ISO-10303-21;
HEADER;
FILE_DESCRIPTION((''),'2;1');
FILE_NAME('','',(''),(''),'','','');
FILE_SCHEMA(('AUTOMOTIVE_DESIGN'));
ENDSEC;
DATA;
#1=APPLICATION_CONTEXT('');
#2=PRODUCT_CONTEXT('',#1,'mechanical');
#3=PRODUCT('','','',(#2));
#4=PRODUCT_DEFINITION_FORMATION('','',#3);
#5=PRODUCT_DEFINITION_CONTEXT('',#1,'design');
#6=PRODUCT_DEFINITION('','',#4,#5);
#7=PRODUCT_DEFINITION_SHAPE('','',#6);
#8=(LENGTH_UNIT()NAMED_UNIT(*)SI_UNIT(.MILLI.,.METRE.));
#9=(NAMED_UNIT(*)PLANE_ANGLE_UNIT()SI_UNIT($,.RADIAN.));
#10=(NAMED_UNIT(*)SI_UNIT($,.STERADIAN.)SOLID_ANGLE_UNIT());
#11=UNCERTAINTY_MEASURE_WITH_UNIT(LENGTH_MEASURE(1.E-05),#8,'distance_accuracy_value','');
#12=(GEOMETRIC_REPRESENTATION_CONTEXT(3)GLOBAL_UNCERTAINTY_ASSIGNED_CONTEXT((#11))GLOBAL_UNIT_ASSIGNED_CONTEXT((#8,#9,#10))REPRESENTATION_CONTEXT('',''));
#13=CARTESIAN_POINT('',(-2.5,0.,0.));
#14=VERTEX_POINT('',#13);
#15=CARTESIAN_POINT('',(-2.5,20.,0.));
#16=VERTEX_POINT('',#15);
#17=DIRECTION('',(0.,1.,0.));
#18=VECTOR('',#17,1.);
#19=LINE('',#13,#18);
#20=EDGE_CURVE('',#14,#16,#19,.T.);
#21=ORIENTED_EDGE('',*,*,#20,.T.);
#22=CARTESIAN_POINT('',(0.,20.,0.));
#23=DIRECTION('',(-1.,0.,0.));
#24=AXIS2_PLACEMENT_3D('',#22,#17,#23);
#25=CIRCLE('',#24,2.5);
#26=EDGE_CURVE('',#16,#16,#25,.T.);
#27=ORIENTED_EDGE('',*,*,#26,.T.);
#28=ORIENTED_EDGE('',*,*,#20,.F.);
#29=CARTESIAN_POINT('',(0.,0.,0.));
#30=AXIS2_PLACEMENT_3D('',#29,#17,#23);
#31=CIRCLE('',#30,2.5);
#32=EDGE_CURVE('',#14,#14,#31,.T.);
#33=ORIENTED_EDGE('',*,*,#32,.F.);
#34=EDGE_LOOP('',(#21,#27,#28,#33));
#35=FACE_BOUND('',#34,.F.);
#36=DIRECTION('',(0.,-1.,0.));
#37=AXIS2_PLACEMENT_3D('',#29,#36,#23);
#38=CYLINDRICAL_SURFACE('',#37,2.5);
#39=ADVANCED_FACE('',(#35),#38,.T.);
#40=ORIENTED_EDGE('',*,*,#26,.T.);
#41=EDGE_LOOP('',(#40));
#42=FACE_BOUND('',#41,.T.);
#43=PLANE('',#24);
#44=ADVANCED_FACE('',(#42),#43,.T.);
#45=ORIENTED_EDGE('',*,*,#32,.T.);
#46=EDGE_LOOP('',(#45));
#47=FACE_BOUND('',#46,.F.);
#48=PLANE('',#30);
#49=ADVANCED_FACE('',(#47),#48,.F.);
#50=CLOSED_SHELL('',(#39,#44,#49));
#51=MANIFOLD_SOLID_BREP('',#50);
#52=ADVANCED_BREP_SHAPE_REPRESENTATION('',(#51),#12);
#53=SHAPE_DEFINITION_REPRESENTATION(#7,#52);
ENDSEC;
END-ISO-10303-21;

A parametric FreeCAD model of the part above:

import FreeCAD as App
import Part
import Sketcher

V = App.Vector
Q = App.Units.Quantity

doc = App.newDocument("Part")
body = doc.addObject("PartDesign::Body", "Body")

sketch1 = body.newObject("Sketcher::SketchObject", "Sketch")
sketch1.AttachmentSupport = (doc.getObject("XZ_Plane"), [""])
sketch1.MapMode = "FlatFace"
sketch1.addGeometry(Part.Circle(V(0, 0, 0), V(0, 0, 1), 2.5), False)
sketch1.addConstraint(Sketcher.Constraint("Coincident", 0, 3, -1, 1))
sketch1.addConstraint(Sketcher.Constraint("Diameter", 0, Q("5 mm")))
pad1 = body.newObject("PartDesign::Pad", "Pad")
pad1.Profile = sketch1
pad1.Length = 20
pad1.Reversed = True

doc.recompute()
